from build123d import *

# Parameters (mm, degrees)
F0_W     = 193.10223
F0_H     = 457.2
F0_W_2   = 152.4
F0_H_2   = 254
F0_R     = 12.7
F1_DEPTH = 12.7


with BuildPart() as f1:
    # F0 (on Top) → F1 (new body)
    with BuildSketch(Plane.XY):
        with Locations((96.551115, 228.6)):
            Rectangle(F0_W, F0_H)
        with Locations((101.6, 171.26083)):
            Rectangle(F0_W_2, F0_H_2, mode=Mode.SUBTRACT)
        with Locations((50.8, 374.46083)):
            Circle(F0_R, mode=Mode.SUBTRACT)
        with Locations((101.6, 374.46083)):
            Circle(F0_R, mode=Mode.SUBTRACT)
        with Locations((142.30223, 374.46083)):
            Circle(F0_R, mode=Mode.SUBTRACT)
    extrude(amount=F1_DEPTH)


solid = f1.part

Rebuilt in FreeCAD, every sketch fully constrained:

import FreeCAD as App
import Part
import Sketcher
Q = App.Units.Quantity

doc = App.newDocument("Part")
body = doc.addObject("PartDesign::Body", "Body")

# Sketch on XY plane
sketch1 = body.newObject("Sketcher::SketchObject", "Sketch")
sketch1.AttachmentSupport = (doc.getObject("XY_Plane"), [""])
sketch1.MapMode = "FlatFace"
sketch1.addGeometry([
    Part.LineSegment(App.Vector(0, 457.2, 0), App.Vector(0, 0, 0)),  # 0
    Part.LineSegment(App.Vector(0, 0, 0), App.Vector(193.10223, 0, 0)),  # 1
    Part.LineSegment(App.Vector(193.10223, 0, 0), App.Vector(193.10223, 457.2, 0)),  # 2
    Part.LineSegment(App.Vector(193.10223, 457.2, 0), App.Vector(0, 457.2, 0)),  # 3
    Part.LineSegment(App.Vector(177.8, 44.26083, 0), App.Vector(25.4, 44.26083, 0)),  # 4
    Part.LineSegment(App.Vector(25.4, 44.26083, 0), App.Vector(25.4, 298.26083, 0)),  # 5
    Part.LineSegment(App.Vector(25.4, 298.26083, 0), App.Vector(177.8, 298.26083, 0)),  # 6
    Part.LineSegment(App.Vector(177.8, 298.26083, 0), App.Vector(177.8, 44.26083, 0)),  # 7
    Part.Circle(App.Vector(50.8, 374.46083, 0), App.Vector(0, 0, 1), 12.7),  # 8
    Part.Circle(App.Vector(101.6, 374.46083, 0), App.Vector(0, 0, 1), 12.7),  # 9
    Part.Circle(App.Vector(142.30223, 374.46083, 0), App.Vector(0, 0, 1), 12.7),  # 10
], False)
sketch1.addConstraint([
    Sketcher.Constraint("Coincident", 0, 2, 1, 1),
    Sketcher.Constraint("Coincident", 1, 2, 2, 1),
    Sketcher.Constraint("Coincident", 2, 2, 3, 1),
    Sketcher.Constraint("Coincident", 3, 2, 0, 1),
    Sketcher.Constraint("Coincident", 4, 2, 5, 1),
    Sketcher.Constraint("Coincident", 5, 2, 6, 1),
    Sketcher.Constraint("Coincident", 6, 2, 7, 1),
    Sketcher.Constraint("Coincident", 7, 2, 4, 1),
    Sketcher.Constraint("Vertical", 0),
    Sketcher.Constraint("Horizontal", 1),
    Sketcher.Constraint("Vertical", 2),
    Sketcher.Constraint("Horizontal", 3),
    Sketcher.Constraint("Horizontal", 4),
    Sketcher.Constraint("Vertical", 5),
    Sketcher.Constraint("Horizontal", 6),
    Sketcher.Constraint("Vertical", 7),
    Sketcher.Constraint("Coincident", 0, 2, -1, 1),
    Sketcher.Constraint("Equal", 8, 9),
    Sketcher.Constraint("Equal", 9, 10),
    Sketcher.Constraint("Horizontal", 8, 3, 9, 3),
    Sketcher.Constraint("Horizontal", 9, 3, 10, 3),
    Sketcher.Constraint("Diameter", 8, Q("1 in")),
    Sketcher.Constraint("DistanceX", 4, 2, 4, 1, Q("6 in")),
    Sketcher.Constraint("DistanceY", 0, 2, 0, 1, Q("18 in")),
    Sketcher.Constraint("DistanceY", 5, 1, 5, 2, Q("10 in")),
    Sketcher.Constraint("DistanceX", -1, 1, 8, 3, Q("2 in")),
    Sketcher.Constraint("DistanceX", -1, 1, 9, 3, Q("4 in")),
    Sketcher.Constraint("DistanceX", -1, 1, 4, 2, Q("1 in")),
    Sketcher.Constraint("DistanceX", 10, 3, 1, 2, Q("2 in")),
    Sketcher.Constraint("DistanceY", 4, 2, 8, 3, Q("13 in")),
    Sketcher.Constraint("DistanceX", 1, 1, 1, 2, 193.10223),
    Sketcher.Constraint("DistanceY", -1, 1, 8, 3, 374.46083),
])
pad1 = body.newObject("PartDesign::Pad", "Pad")
pad1.Profile = sketch1
pad1.Length = Q("0.5 in")

doc.recompute()
